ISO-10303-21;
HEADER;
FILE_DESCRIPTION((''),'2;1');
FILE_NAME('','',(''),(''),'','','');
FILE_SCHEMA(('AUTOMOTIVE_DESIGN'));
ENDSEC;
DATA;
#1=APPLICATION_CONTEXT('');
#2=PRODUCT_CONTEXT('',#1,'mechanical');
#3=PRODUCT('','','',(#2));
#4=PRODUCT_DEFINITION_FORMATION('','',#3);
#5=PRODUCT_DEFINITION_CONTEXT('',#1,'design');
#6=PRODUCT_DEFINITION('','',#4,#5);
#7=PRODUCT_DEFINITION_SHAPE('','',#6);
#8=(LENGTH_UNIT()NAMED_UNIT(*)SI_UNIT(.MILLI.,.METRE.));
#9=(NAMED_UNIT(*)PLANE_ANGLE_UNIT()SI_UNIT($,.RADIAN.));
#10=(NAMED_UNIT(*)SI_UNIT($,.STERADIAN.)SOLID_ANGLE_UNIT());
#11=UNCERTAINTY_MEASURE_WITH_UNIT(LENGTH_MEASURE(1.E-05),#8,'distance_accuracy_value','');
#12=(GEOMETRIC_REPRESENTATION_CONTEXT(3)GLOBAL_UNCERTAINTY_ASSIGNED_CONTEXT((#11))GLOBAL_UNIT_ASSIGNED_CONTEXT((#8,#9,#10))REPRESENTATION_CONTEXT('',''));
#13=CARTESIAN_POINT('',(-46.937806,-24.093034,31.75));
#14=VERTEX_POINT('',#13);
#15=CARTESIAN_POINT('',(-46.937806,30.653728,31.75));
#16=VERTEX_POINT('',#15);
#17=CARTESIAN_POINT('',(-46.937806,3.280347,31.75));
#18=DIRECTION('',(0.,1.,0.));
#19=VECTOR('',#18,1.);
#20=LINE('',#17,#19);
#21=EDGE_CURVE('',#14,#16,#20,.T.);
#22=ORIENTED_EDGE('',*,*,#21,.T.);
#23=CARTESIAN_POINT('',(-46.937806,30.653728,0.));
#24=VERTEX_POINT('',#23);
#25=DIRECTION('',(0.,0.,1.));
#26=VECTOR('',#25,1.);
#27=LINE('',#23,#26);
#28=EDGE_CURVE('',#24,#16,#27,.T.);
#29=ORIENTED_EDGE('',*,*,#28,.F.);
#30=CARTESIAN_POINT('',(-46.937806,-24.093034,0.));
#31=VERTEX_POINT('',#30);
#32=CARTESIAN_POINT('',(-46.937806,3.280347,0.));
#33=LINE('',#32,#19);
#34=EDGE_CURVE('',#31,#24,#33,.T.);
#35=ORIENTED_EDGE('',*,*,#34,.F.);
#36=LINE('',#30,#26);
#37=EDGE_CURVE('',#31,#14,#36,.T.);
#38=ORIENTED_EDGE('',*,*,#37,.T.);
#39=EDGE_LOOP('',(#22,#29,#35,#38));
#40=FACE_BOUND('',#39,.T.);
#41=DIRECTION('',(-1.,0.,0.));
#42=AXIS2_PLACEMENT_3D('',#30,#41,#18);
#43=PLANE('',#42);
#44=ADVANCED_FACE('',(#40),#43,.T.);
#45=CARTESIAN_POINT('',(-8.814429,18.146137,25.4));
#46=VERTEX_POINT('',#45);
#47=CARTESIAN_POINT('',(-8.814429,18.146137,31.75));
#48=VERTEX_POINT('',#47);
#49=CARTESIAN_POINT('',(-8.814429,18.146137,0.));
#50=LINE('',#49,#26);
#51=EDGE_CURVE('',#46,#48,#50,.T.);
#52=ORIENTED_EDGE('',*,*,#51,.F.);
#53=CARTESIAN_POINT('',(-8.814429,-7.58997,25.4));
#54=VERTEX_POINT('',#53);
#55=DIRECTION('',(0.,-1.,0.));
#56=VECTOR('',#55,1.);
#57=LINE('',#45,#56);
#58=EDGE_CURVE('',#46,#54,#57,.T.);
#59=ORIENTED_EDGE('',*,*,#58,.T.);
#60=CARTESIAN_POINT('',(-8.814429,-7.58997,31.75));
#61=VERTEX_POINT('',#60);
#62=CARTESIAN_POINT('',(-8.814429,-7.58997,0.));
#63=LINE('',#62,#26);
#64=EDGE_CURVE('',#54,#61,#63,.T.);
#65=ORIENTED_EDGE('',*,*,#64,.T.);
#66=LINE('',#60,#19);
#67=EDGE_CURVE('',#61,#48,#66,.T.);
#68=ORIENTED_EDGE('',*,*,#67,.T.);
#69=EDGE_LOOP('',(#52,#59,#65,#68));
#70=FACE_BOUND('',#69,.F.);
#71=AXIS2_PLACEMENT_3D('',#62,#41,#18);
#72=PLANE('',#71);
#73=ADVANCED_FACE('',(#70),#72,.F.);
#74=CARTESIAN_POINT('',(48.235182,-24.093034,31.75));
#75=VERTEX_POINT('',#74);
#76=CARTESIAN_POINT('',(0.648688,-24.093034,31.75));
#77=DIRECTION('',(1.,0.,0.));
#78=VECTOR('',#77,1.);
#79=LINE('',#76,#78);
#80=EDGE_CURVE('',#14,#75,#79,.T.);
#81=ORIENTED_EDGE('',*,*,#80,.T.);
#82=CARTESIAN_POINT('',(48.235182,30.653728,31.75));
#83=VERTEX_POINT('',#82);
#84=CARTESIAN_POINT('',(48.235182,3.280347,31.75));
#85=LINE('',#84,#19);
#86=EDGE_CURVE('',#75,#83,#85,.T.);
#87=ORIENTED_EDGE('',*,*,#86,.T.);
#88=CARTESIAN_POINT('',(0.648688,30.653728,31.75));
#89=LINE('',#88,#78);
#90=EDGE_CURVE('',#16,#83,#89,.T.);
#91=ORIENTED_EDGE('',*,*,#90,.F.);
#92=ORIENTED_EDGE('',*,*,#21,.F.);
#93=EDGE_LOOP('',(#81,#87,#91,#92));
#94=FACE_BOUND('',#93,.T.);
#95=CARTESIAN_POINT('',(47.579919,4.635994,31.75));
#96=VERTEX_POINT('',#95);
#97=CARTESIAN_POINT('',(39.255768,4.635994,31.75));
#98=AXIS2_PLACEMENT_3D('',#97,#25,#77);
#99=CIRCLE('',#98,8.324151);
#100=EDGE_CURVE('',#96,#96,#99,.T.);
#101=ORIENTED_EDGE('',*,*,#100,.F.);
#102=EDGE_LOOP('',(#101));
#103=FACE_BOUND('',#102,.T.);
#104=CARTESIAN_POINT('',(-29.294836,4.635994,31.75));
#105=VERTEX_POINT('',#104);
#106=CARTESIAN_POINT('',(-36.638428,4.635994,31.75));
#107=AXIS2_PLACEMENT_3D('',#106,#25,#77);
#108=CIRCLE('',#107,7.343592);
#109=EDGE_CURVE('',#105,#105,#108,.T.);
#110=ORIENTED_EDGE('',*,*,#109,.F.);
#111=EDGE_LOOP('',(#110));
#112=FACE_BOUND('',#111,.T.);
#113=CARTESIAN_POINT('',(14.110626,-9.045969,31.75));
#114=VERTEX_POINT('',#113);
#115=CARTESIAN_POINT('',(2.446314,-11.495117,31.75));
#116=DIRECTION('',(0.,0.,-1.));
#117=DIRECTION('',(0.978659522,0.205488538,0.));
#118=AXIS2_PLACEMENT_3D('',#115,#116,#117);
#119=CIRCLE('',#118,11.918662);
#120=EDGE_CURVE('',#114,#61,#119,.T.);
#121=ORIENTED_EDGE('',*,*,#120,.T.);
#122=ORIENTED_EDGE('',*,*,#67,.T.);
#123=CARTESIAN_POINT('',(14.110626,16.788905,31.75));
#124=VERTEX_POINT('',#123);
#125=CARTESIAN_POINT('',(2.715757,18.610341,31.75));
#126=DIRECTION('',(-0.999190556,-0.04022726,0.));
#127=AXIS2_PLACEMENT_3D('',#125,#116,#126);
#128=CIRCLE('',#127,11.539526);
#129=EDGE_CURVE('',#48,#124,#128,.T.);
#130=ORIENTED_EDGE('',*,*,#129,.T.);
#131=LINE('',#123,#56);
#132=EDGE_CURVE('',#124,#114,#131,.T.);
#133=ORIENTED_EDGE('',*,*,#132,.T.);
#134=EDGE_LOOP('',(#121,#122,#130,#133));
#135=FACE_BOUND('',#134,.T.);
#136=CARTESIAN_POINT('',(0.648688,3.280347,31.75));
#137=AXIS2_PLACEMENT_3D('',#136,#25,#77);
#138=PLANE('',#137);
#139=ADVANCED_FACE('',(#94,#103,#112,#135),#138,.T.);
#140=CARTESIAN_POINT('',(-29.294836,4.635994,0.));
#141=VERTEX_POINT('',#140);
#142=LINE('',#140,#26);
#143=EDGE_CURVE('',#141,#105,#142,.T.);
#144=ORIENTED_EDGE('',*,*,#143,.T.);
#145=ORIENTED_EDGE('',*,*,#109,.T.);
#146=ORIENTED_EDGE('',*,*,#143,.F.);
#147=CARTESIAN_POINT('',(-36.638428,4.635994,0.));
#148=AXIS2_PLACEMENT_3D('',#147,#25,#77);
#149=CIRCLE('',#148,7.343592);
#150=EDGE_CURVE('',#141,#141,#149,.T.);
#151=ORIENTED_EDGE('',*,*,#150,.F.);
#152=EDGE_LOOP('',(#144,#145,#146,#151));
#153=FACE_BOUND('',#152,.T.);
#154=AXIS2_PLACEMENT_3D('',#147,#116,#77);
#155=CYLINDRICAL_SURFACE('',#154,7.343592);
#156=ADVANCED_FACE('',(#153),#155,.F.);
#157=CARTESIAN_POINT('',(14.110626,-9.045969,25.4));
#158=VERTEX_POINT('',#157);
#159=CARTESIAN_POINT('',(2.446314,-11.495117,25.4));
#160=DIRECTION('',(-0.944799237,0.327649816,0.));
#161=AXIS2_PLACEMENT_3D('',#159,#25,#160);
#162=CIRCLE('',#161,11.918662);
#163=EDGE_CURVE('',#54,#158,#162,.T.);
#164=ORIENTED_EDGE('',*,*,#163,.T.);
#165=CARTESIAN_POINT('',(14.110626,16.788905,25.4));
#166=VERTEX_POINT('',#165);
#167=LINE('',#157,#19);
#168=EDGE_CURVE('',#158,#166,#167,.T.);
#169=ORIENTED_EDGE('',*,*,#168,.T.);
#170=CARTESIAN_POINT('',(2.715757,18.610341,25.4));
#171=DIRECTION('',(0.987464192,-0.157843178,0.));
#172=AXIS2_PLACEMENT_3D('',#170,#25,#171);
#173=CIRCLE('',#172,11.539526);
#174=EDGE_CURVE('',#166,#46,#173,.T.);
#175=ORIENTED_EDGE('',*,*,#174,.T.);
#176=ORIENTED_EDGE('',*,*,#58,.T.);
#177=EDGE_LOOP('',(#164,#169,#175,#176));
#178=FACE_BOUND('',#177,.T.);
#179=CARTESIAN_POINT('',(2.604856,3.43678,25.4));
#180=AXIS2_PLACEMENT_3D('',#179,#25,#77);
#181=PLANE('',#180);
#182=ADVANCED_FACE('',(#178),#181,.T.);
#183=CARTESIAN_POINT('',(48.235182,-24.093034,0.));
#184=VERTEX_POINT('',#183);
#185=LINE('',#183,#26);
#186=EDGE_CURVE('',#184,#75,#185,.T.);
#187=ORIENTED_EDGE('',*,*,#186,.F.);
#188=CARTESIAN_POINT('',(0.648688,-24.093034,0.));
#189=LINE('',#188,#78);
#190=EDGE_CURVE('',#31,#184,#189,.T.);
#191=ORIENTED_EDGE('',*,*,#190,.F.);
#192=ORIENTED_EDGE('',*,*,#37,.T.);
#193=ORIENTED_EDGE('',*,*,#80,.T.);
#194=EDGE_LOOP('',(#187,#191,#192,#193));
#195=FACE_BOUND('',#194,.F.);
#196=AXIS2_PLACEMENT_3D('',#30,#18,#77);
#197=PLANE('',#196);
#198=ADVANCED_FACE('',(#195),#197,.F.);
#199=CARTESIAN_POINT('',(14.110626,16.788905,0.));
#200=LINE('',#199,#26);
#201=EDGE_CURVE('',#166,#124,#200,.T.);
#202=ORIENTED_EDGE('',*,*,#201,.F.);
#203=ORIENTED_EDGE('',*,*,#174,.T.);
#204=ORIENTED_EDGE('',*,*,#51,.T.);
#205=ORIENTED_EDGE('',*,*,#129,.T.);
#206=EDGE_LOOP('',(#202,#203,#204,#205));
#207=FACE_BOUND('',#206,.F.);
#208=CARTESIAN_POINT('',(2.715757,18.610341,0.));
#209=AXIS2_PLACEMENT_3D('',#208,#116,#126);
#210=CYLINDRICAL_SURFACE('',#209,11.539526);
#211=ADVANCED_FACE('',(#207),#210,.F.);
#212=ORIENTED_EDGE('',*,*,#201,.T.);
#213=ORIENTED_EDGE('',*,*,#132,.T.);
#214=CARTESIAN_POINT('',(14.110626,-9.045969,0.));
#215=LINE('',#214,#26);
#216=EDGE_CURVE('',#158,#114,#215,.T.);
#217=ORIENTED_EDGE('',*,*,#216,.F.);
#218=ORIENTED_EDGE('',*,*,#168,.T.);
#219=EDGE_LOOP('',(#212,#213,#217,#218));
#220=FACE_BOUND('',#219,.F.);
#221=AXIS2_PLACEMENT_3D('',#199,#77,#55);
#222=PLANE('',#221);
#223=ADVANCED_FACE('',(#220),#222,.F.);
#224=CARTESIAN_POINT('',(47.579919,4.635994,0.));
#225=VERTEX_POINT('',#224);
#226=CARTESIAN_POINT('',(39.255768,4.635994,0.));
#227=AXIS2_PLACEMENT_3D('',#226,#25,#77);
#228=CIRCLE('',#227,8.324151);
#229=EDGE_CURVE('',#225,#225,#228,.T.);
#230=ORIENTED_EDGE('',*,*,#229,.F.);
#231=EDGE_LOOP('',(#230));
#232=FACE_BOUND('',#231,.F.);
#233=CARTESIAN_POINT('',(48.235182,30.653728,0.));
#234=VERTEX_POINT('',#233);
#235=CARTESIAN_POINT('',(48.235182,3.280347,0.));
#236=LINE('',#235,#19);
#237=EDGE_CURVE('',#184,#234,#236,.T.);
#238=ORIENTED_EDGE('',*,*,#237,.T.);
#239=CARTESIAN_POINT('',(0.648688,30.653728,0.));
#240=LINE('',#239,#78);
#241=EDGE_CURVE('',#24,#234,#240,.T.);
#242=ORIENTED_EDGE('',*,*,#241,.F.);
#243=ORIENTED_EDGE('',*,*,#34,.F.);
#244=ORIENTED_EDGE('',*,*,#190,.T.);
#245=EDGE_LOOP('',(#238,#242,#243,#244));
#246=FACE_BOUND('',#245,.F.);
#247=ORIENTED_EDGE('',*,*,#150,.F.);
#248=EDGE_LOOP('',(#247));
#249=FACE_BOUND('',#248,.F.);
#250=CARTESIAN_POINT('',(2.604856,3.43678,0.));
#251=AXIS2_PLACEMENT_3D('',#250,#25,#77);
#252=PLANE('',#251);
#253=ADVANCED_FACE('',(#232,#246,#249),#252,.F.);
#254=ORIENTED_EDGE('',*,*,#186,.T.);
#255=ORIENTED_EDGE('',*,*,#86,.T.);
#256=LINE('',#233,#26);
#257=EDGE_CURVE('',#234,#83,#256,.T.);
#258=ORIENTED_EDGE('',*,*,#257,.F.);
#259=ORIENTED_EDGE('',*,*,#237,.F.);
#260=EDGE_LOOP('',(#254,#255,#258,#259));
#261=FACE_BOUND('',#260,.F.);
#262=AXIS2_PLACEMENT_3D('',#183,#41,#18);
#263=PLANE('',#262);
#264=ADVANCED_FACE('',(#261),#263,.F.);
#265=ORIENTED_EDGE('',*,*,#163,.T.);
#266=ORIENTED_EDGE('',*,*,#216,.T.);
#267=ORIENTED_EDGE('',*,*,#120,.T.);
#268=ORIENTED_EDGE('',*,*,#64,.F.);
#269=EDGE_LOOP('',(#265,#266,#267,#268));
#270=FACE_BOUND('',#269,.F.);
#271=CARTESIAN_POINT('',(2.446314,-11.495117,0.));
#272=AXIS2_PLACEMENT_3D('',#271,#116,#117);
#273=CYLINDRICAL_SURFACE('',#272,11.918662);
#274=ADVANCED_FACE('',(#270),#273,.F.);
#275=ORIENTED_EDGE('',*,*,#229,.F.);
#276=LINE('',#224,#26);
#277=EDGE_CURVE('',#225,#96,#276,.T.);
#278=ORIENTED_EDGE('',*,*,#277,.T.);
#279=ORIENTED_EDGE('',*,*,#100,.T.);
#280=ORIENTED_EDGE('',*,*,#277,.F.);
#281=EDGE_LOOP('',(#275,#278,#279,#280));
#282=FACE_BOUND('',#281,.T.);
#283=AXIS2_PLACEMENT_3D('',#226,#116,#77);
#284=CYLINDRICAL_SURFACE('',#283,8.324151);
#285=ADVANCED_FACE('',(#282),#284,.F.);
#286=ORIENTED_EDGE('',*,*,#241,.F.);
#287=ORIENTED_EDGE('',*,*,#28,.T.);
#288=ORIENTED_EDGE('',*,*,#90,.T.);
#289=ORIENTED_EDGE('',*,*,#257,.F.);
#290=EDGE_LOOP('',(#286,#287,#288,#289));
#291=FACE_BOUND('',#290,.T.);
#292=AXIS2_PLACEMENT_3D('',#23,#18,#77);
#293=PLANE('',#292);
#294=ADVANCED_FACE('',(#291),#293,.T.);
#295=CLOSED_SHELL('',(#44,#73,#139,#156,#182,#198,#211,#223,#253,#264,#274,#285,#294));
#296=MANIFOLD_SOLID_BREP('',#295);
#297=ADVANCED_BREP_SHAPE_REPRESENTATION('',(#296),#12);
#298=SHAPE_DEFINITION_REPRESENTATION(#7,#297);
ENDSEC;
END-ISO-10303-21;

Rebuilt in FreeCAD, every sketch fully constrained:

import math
import FreeCAD as App
import Part
import Sketcher

V = App.Vector

doc = App.newDocument("Part")
params = doc.addObject("Spreadsheet::Sheet", "Params")
for row, (alias, value) in enumerate([
    ("pad1_length", "1.25 in"),
    ("pad2_length", "1 in"),
], start=1):
    params.set(f"A{row}", alias)
    params.set(f"B{row}", "=" + value)
    params.setAlias(f"B{row}", alias)

body = doc.addObject("PartDesign::Body", "Body")

# Sketch on XY plane
sketch1 = body.newObject("Sketcher::SketchObject", "Sketch")
sketch1.AttachmentSupport = (doc.getObject("XY_Plane"), [""])
sketch1.MapMode = "FlatFace"
sketch1.addGeometry(Part.LineSegment(V(-46.937806, 30.653728, 0), V(-46.937806, -24.093034, 0)), False)
sketch1.addGeometry(Part.LineSegment(V(-46.937806, -24.093034, 0), V(48.235182, -24.093034, 0)), False)
sketch1.addGeometry(Part.LineSegment(V(48.235182, -24.093034, 0), V(48.235182, 30.653728, 0)), False)
sketch1.addGeometry(Part.LineSegment(V(48.235182, 30.653728, 0), V(-46.937806, 30.653728, 0)), False)
sketch1.addGeometry(Part.LineSegment(V(14.110626, 16.788905, 0), V(14.110626, -9.045969, 0)), False)
sketch1.addGeometry(Part.ArcOfCircle(Part.Circle(V(2.446314, -11.495117, 0), V(0, 0, 1), 11.918662), math.radians(160.873809), math.radians(371.858099)), False)
sketch1.addGeometry(Part.LineSegment(V(-8.814429, -7.58997, 0), V(-8.814429, 18.146137, 0)), False)
sketch1.addGeometry(Part.ArcOfCircle(Part.Circle(V(2.715757, 18.610341, 0), V(0, 0, 1), 11.539526), math.radians(-9.081729), math.radians(182.305474)), False)
sketch1.addGeometry(Part.Circle(V(-36.638428, 4.635994, 0), V(0, 0, 1), 7.343592), False)
sketch1.addGeometry(Part.Circle(V(39.255768, 4.635994, 0), V(0, 0, 1), 8.324151), False)
sketch1.addConstraint(Sketcher.Constraint("Coincident", 0, 2, 1, 1))
sketch1.addConstraint(Sketcher.Constraint("Coincident", 1, 2, 2, 1))
sketch1.addConstraint(Sketcher.Constraint("Coincident", 2, 2, 3, 1))
sketch1.addConstraint(Sketcher.Constraint("Coincident", 3, 2, 0, 1))
sketch1.addConstraint(Sketcher.Constraint("Coincident", 4, 2, 5, 2))
sketch1.addConstraint(Sketcher.Constraint("Coincident", 5, 1, 6, 1))
sketch1.addConstraint(Sketcher.Constraint("Coincident", 6, 2, 7, 2))
sketch1.addConstraint(Sketcher.Constraint("Coincident", 7, 1, 4, 1))
sketch1.addConstraint(Sketcher.Constraint("Vertical", 0))
sketch1.addConstraint(Sketcher.Constraint("Horizontal", 1))
sketch1.addConstraint(Sketcher.Constraint("Vertical", 2))
sketch1.addConstraint(Sketcher.Constraint("Horizontal", 3))
sketch1.addConstraint(Sketcher.Constraint("Vertical", 4))
sketch1.addConstraint(Sketcher.Constraint("Vertical", 6))
sketch1.addConstraint(Sketcher.Constraint("Horizontal", 8, 3, 9, 3))
sketch1.addConstraint(Sketcher.Constraint("Diameter", 8, 14.687184))
sketch1.addConstraint(Sketcher.Constraint("Diameter", 9, 16.648302))
sketch1.addConstraint(Sketcher.Constraint("Radius", 5, 11.918662))
sketch1.addConstraint(Sketcher.Constraint("Radius", 7, 11.539526))
sketch1.addConstraint(Sketcher.Constraint("DistanceY", 4, 2, 5, 1, 1.455999))
sketch1.addConstraint(Sketcher.Constraint("DistanceX", 8, 3, 5, 1, 27.823999))
sketch1.addConstraint(Sketcher.Constraint("DistanceX", 1, 1, 1, 2, 95.172987))
sketch1.addConstraint(Sketcher.Constraint("DistanceY", 0, 2, 0, 1, 54.746762))
sketch1.addConstraint(Sketcher.Constraint("DistanceY", 4, 2, 4, 1, 25.834874))
sketch1.addConstraint(Sketcher.Constraint("DistanceY", 6, 1, 6, 2, 25.736107))
sketch1.addConstraint(Sketcher.Constraint("DistanceY", -1, 1, 7, 3, 18.610341))
sketch1.addConstraint(Sketcher.Constraint("DistanceX", -1, 1, 9, 3, 39.255768))
sketch1.addConstraint(Sketcher.Constraint("DistanceX", -1, 1, 1, 2, 48.235182))
sketch1.addConstraint(Sketcher.Constraint("DistanceY", -1, 1, 2, 2, 30.653728))
sketch1.addConstraint(Sketcher.Constraint("DistanceY", 4, 2, -1, 1, 9.045969))
sketch1.addConstraint(Sketcher.Constraint("DistanceX", 5, 1, -1, 1, 8.814429))
sketch1.addConstraint(Sketcher.Constraint("DistanceY", 5, 3, 8, 3, 16.131111))
pad1 = body.newObject("PartDesign::Pad", "Pad")
pad1.Profile = sketch1
pad1.setExpression("Length", "Params.pad1_length")

# Sketch on XY plane
sketch2 = body.newObject("Sketcher::SketchObject", "Sketch001")
sketch2.AttachmentSupport = (doc.getObject("XY_Plane"), [""])
sketch2.MapMode = "FlatFace"
sketch2.addGeometry(Part.LineSegment(V(-8.814429, 18.146137, 0), V(-8.814429, -7.58997, 0)), False)
sketch2.addGeometry(Part.ArcOfCircle(Part.Circle(V(2.446314, -11.495117, 0), V(0, 0, 1), 11.918662), math.radians(160.873809), math.radians(371.858099)), False)
sketch2.addGeometry(Part.LineSegment(V(14.110626, -9.045969, 0), V(14.110626, 16.788905, 0)), False)
sketch2.addGeometry(Part.ArcOfCircle(Part.Circle(V(2.715757, 18.610341, 0), V(0, 0, 1), 11.539526), math.radians(-9.081729), math.radians(182.305474)), False)
sketch2.addConstraint(Sketcher.Constraint("Coincident", 0, 2, 1, 1))
sketch2.addConstraint(Sketcher.Constraint("Coincident", 1, 2, 2, 1))
sketch2.addConstraint(Sketcher.Constraint("Coincident", 2, 2, 3, 1))
sketch2.addConstraint(Sketcher.Constraint("Coincident", 3, 2, 0, 1))
sketch2.addConstraint(Sketcher.Constraint("Vertical", 0))
sketch2.addConstraint(Sketcher.Constraint("Vertical", 2))
sketch2.addConstraint(Sketcher.Constraint("Radius", 1, 11.918662))
sketch2.addConstraint(Sketcher.Constraint("Radius", 3, 11.539526))
sketch2.addConstraint(Sketcher.Constraint("DistanceY", 1, 2, 0, 2, 1.455999))
sketch2.addConstraint(Sketcher.Constraint("DistanceY", 0, 2, 0, 1, 25.736107))
sketch2.addConstraint(Sketcher.Constraint("DistanceY", 2, 1, 2, 2, 25.834874))
sketch2.addConstraint(Sketcher.Constraint("DistanceY", -1, 1, 3, 3, 18.610341))
sketch2.addConstraint(Sketcher.Constraint("DistanceX", 0, 2, -1, 1, 8.814429))
sketch2.addConstraint(Sketcher.Constraint("DistanceY", 0, 2, -1, 1, 7.58997))
pad2 = body.newObject("PartDesign::Pad", "Pad001")
pad2.Profile = sketch2
pad2.setExpression("Length", "Params.pad2_length")

doc.recompute()
